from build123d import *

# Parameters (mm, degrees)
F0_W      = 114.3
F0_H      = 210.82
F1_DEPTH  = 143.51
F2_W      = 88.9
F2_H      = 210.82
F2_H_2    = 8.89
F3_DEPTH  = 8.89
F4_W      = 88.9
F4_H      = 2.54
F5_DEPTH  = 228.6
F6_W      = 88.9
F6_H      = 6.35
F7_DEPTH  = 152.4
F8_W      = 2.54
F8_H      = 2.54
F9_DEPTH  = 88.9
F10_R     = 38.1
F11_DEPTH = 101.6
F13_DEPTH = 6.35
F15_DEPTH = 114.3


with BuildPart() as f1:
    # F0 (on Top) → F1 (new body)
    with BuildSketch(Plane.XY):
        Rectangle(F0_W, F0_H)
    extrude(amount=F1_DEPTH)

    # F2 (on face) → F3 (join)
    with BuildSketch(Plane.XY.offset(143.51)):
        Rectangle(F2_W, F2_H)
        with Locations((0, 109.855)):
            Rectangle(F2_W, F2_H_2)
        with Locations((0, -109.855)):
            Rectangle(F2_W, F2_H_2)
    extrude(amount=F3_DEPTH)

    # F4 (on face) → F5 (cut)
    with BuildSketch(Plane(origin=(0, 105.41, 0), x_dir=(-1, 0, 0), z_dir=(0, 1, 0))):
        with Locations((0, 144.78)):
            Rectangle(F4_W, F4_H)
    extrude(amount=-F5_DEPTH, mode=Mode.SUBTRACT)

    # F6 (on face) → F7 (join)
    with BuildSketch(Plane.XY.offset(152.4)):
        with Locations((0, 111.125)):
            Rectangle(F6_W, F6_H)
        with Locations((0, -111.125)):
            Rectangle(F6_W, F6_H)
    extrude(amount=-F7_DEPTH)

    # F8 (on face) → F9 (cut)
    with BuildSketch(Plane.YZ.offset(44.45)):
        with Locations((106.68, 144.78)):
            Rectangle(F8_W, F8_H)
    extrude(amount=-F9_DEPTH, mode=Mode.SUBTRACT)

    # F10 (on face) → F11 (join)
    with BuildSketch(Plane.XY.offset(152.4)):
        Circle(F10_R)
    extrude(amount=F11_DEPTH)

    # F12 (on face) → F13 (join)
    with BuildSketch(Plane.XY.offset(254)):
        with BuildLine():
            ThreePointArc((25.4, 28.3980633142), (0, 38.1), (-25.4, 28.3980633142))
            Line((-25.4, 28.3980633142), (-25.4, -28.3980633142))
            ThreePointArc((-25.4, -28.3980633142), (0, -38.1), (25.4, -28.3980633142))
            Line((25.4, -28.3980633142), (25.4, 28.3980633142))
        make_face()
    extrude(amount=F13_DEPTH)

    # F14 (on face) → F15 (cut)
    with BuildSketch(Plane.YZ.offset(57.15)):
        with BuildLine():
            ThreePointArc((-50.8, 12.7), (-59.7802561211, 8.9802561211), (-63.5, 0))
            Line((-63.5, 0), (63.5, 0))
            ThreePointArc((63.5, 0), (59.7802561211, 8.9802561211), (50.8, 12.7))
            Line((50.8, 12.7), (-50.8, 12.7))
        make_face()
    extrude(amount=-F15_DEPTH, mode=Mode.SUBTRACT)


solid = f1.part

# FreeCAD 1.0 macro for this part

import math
import FreeCAD as App
import Part
import Sketcher

V = App.Vector
Q = App.Units.Quantity

doc = App.newDocument("Part")
body = doc.addObject("PartDesign::Body", "Body")
body.AllowCompound = True

sketch1 = body.newObject("Sketcher::SketchObject", "Sketch")
sketch1.AttachmentSupport = (doc.getObject("XY_Plane"), [""])
sketch1.MapMode = "FlatFace"
sketch1.addGeometry(Part.LineSegment(V(-57, 105, 0), V(-57, -105, 0)), False)
sketch1.addGeometry(Part.LineSegment(V(-57, -105, 0), V(57, -105, 0)), False)
sketch1.addGeometry(Part.LineSegment(V(57, -105, 0), V(57, 105, 0)), False)
sketch1.addGeometry(Part.LineSegment(V(57, 105, 0), V(-57, 105, 0)), False)
sketch1.addConstraint(Sketcher.Constraint("Coincident", 0, 2, 1, 1))
sketch1.addConstraint(Sketcher.Constraint("Coincident", 1, 2, 2, 1))
sketch1.addConstraint(Sketcher.Constraint("Coincident", 2, 2, 3, 1))
sketch1.addConstraint(Sketcher.Constraint("Coincident", 3, 2, 0, 1))
sketch1.addConstraint(Sketcher.Constraint("Vertical", 0))
sketch1.addConstraint(Sketcher.Constraint("Horizontal", 1))
sketch1.addConstraint(Sketcher.Constraint("Vertical", 2))
sketch1.addConstraint(Sketcher.Constraint("Horizontal", 3))
sketch1.addConstraint(Sketcher.Constraint("Symmetric", 0, 2, 2, 2, -1, 1))
sketch1.addConstraint(Sketcher.Constraint("DistanceX", 1, 1, 1, 2, Q("4.5 in")))
sketch1.addConstraint(Sketcher.Constraint("DistanceY", 0, 2, 0, 1, Q("8.3 in")))
pad1 = body.newObject("PartDesign::Pad", "Pad")
pad1.Profile = sketch1
pad1.Length = Q("5.65 in")

sketch2 = body.newObject("Sketcher::SketchObject", "Sketch001")
sketch2.AttachmentSupport = (doc.getObject("XY_Plane"), [""])
sketch2.MapMode = "FlatFace"
sketch2.AttachmentOffset = App.Placement(V(0, 0, 5.65 * 25.4), App.Rotation())
sketch2.addGeometry(Part.LineSegment(V(44, 114, 0), V(-44, 114, 0)), False)
sketch2.addGeometry(Part.LineSegment(V(-44, 114, 0), V(-44, -114, 0)), False)
sketch2.addGeometry(Part.LineSegment(V(-44, -114, 0), V(44, -114, 0)), False)
sketch2.addGeometry(Part.LineSegment(V(44, -114, 0), V(44, 114, 0)), False)
sketch2.addConstraint(Sketcher.Constraint("Coincident", 0, 2, 1, 1))
sketch2.addConstraint(Sketcher.Constraint("Coincident", 1, 2, 2, 1))
sketch2.addConstraint(Sketcher.Constraint("Coincident", 2, 2, 3, 1))
sketch2.addConstraint(Sketcher.Constraint("Coincident", 3, 2, 0, 1))
sketch2.addConstraint(Sketcher.Constraint("Horizontal", 0))
sketch2.addConstraint(Sketcher.Constraint("Vertical", 1))
sketch2.addConstraint(Sketcher.Constraint("Horizontal", 2))
sketch2.addConstraint(Sketcher.Constraint("Vertical", 3))
sketch2.addConstraint(Sketcher.Constraint("Symmetric", 0, 2, 2, 2, -1, 1))
sketch2.addConstraint(Sketcher.Constraint("DistanceY", 1, 2, 1, 1, Q("9 in")))
sketch2.addConstraint(Sketcher.Constraint("DistanceX", 0, 2, 0, 1, Q("3.5 in")))
pad2 = body.newObject("PartDesign::Pad", "Pad001")
pad2.Profile = sketch2
pad2.Length = Q("0.35 in")

sketch3 = body.newObject("Sketcher::SketchObject", "Sketch002")
sketch3.AttachmentSupport = (doc.getObject("XZ_Plane"), [""])
sketch3.MapMode = "FlatFace"
sketch3.AttachmentOffset = App.Placement(V(0, 0, -4.15 * 25.4), App.Rotation())
sketch3.addGeometry(Part.LineSegment(V(44.5, 146.1, 0), V(44.5, 143.5, 0)), False)
sketch3.addGeometry(Part.LineSegment(V(44.5, 143.5, 0), V(-44.5, 143.5, 0)), False)
sketch3.addGeometry(Part.LineSegment(V(-44.5, 143.5, 0), V(-44.5, 146.1, 0)), False)
sketch3.addGeometry(Part.LineSegment(V(-44.5, 146.1, 0), V(44.5, 146.1, 0)), False)
sketch3.addConstraint(Sketcher.Constraint("Coincident", 0, 2, 1, 1))
sketch3.addConstraint(Sketcher.Constraint("Coincident", 1, 2, 2, 1))
sketch3.addConstraint(Sketcher.Constraint("Coincident", 2, 2, 3, 1))
sketch3.addConstraint(Sketcher.Constraint("Coincident", 3, 2, 0, 1))
sketch3.addConstraint(Sketcher.Constraint("Vertical", 0))
sketch3.addConstraint(Sketcher.Constraint("Horizontal", 1))
sketch3.addConstraint(Sketcher.Constraint("Vertical", 2))
sketch3.addConstraint(Sketcher.Constraint("Horizontal", 3))
sketch3.addConstraint(Sketcher.Constraint("DistanceX", 1, 2, 1, 1, Q("3.5 in")))
sketch3.addConstraint(Sketcher.Constraint("DistanceY", 0, 2, 0, 1, Q("0.1 in")))
sketch3.addConstraint(Sketcher.Constraint("DistanceX", -1, 1, 0, 2, Q("1.75 in")))
sketch3.addConstraint(Sketcher.Constraint("DistanceY", -1, 1, 0, 2, Q("5.65 in")))
pocket1 = body.newObject("PartDesign::Pocket", "Pocket")
pocket1.Profile = sketch3
pocket1.Length = Q("9 in")
pocket1.Reversed = True

sketch4 = body.newObject("Sketcher::SketchObject", "Sketch003")
sketch4.AttachmentSupport = (doc.getObject("XY_Plane"), [""])
sketch4.MapMode = "FlatFace"
sketch4.AttachmentOffset = App.Placement(V(0, 0, 6 * 25.4), App.Rotation())
sketch4.addGeometry(Part.LineSegment(V(-44, 114, 0), V(-44, 108, 0)), False)
sketch4.addGeometry(Part.LineSegment(V(-44, 108, 0), V(44, 108, 0)), False)
sketch4.addGeometry(Part.LineSegment(V(44, 108, 0), V(44, 114, 0)), False)
sketch4.addGeometry(Part.LineSegment(V(44, 114, 0), V(-44, 114, 0)), False)
sketch4.addGeometry(Part.LineSegment(V(-44, -108, 0), V(-44, -114, 0)), False)
sketch4.addGeometry(Part.LineSegment(V(-44, -114, 0), V(44, -114, 0)), False)
sketch4.addGeometry(Part.LineSegment(V(44, -114, 0), V(44, -108, 0)), False)
sketch4.addGeometry(Part.LineSegment(V(44, -108, 0), V(-44, -108, 0)), False)
sketch4.addConstraint(Sketcher.Constraint("Coincident", 0, 2, 1, 1))
sketch4.addConstraint(Sketcher.Constraint("Coincident", 1, 2, 2, 1))
sketch4.addConstraint(Sketcher.Constraint("Coincident", 2, 2, 3, 1))
sketch4.addConstraint(Sketcher.Constraint("Coincident", 3, 2, 0, 1))
sketch4.addConstraint(Sketcher.Constraint("Coincident", 4, 2, 5, 1))
sketch4.addConstraint(Sketcher.Constraint("Coincident", 5, 2, 6, 1))
sketch4.addConstraint(Sketcher.Constraint("Coincident", 6, 2, 7, 1))
sketch4.addConstraint(Sketcher.Constraint("Coincident", 7, 2, 4, 1))
sketch4.addConstraint(Sketcher.Constraint("Vertical", 0))
sketch4.addConstraint(Sketcher.Constraint("Horizontal", 1))
sketch4.addConstraint(Sketcher.Constraint("Vertical", 2))
sketch4.addConstraint(Sketcher.Constraint("Horizontal", 3))
sketch4.addConstraint(Sketcher.Constraint("Vertical", 4))
sketch4.addConstraint(Sketcher.Constraint("Horizontal", 5))
sketch4.addConstraint(Sketcher.Constraint("Vertical", 6))
sketch4.addConstraint(Sketcher.Constraint("Horizontal", 7))
sketch4.addConstraint(Sketcher.Constraint("Symmetric", 2, 2, 4, 2, -1, 1))
sketch4.addConstraint(Sketcher.Constraint("Symmetric", 0, 2, 6, 2, -1, 1))
sketch4.addConstraint(Sketcher.Constraint("Vertical", 3, 2, 4, 2))
sketch4.addConstraint(Sketcher.Constraint("DistanceX", 1, 1, 1, 2, Q("3.5 in")))
sketch4.addConstraint(Sketcher.Constraint("DistanceY", 4, 2, 3, 2, Q("9 in")))
sketch4.addConstraint(Sketcher.Constraint("DistanceY", 0, 2, 0, 1, Q("0.25 in")))
pad3 = body.newObject("PartDesign::Pad", "Pad002")
pad3.Profile = sketch4
pad3.Length = Q("6 in")
pad3.Reversed = True

sketch5 = body.newObject("Sketcher::SketchObject", "Sketch004")
sketch5.AttachmentSupport = (doc.getObject("YZ_Plane"), [""])
sketch5.MapMode = "FlatFace"
sketch5.AttachmentOffset = App.Placement(V(0, 0, 1.75 * 25.4), App.Rotation())
sketch5.addGeometry(Part.LineSegment(V(105.4, 146.1, 0), V(105.4, 143.5, 0)), False)
sketch5.addGeometry(Part.LineSegment(V(105.4, 143.5, 0), V(108, 143.5, 0)), False)
sketch5.addGeometry(Part.LineSegment(V(108, 143.5, 0), V(108, 146.1, 0)), False)
sketch5.addGeometry(Part.LineSegment(V(108, 146.1, 0), V(105.4, 146.1, 0)), False)
sketch5.addConstraint(Sketcher.Constraint("Coincident", 0, 2, 1, 1))
sketch5.addConstraint(Sketcher.Constraint("Coincident", 1, 2, 2, 1))
sketch5.addConstraint(Sketcher.Constraint("Coincident", 2, 2, 3, 1))
sketch5.addConstraint(Sketcher.Constraint("Coincident", 3, 2, 0, 1))
sketch5.addConstraint(Sketcher.Constraint("Vertical", 0))
sketch5.addConstraint(Sketcher.Constraint("Horizontal", 1))
sketch5.addConstraint(Sketcher.Constraint("Vertical", 2))
sketch5.addConstraint(Sketcher.Constraint("Horizontal", 3))
sketch5.addConstraint(Sketcher.Constraint("Equal", 3, 0))
sketch5.addConstraint(Sketcher.Constraint("DistanceX", 1, 1, 1, 2, Q("0.1 in")))
sketch5.addConstraint(Sketcher.Constraint("DistanceX", -1, 1, 0, 2, Q("4.15 in")))
sketch5.addConstraint(Sketcher.Constraint("DistanceY", -1, 1, 0, 2, Q("5.65 in")))
pocket2 = body.newObject("PartDesign::Pocket", "Pocket001")
pocket2.Profile = sketch5
pocket2.Length = Q("3.5 in")

sketch6 = body.newObject("Sketcher::SketchObject", "Sketch005")
sketch6.AttachmentSupport = (doc.getObject("XY_Plane"), [""])
sketch6.MapMode = "FlatFace"
sketch6.AttachmentOffset = App.Placement(V(0, 0, 6 * 25.4), App.Rotation())
sketch6.addGeometry(Part.Circle(V(0, 0, 0), V(0, 0, 1), 38), False)
sketch6.addConstraint(Sketcher.Constraint("Coincident", 0, 3, -1, 1))
sketch6.addConstraint(Sketcher.Constraint("Diameter", 0, Q("3 in")))
pad4 = body.newObject("PartDesign::Pad", "Pad003")
pad4.Profile = sketch6
pad4.Length = Q("4 in")

sketch7 = body.newObject("Sketcher::SketchObject", "Sketch006")
sketch7.AttachmentSupport = (doc.getObject("XY_Plane"), [""])
sketch7.MapMode = "FlatFace"
sketch7.AttachmentOffset = App.Placement(V(0, 0, 10 * 25.4), App.Rotation())
sketch7.addGeometry(Part.ArcOfCircle(Part.Circle(V(0, 0, 0), V(0, 0, 1), 38), math.radians(48), math.radians(132)), False)
sketch7.addGeometry(Part.LineSegment(V(-25, 28, 0), V(-25, -28, 0)), False)
sketch7.addGeometry(Part.ArcOfCircle(Part.Circle(V(0, 0, 0), V(0, 0, 1), 38), math.radians(-132), math.radians(-48)), False)
sketch7.addGeometry(Part.LineSegment(V(25, -28, 0), V(25, 28, 0)), False)
sketch7.addConstraint(Sketcher.Constraint("Coincident", 0, 2, 1, 1))
sketch7.addConstraint(Sketcher.Constraint("Coincident", 1, 2, 2, 1))
sketch7.addConstraint(Sketcher.Constraint("Coincident", 2, 2, 3, 1))
sketch7.addConstraint(Sketcher.Constraint("Coincident", 3, 2, 0, 1))
sketch7.addConstraint(Sketcher.Constraint("Vertical", 1))
sketch7.addConstraint(Sketcher.Constraint("Vertical", 3))
sketch7.addConstraint(Sketcher.Constraint("Coincident", 0, 3, -1, 1))
sketch7.addConstraint(Sketcher.Constraint("Coincident", 2, 3, -1, 1))
sketch7.addConstraint(Sketcher.Constraint("Equal", 0, 2))
sketch7.addConstraint(Sketcher.Constraint("Horizontal", 1, 2, 2, 2))
sketch7.addConstraint(Sketcher.Constraint("Radius", 0, Q("1.5 in")))
sketch7.addConstraint(Sketcher.Constraint("DistanceX", 0, 2, -1, 1, Q("1 in")))
pad5 = body.newObject("PartDesign::Pad", "Pad004")
pad5.Profile = sketch7
pad5.Length = Q("0.25 in")

sketch8 = body.newObject("Sketcher::SketchObject", "Sketch007")
sketch8.AttachmentSupport = (doc.getObject("YZ_Plane"), [""])
sketch8.MapMode = "FlatFace"
sketch8.AttachmentOffset = App.Placement(V(0, 0, 2.25 * 25.4), App.Rotation())
sketch8.addGeometry(Part.ArcOfCircle(Part.Circle(V(-51, 0, 0), V(0, 0, 1), 13), math.radians(90), math.radians(180)), False)
sketch8.addGeometry(Part.LineSegment(V(-64, 0, 0), V(64, 0, 0)), False)
sketch8.addGeometry(Part.ArcOfCircle(Part.Circle(V(51, 0, 0), V(0, 0, 1), 13), math.radians(0), math.radians(90)), False)
sketch8.addGeometry(Part.LineSegment(V(51, 13, 0), V(-51, 13, 0)), False)
sketch8.addConstraint(Sketcher.Constraint("Coincident", 0, 2, 1, 1))
sketch8.addConstraint(Sketcher.Constraint("Coincident", 1, 2, 2, 1))
sketch8.addConstraint(Sketcher.Constraint("Tangent", 2, 2, 3, 1))
sketch8.addConstraint(Sketcher.Constraint("Tangent", 3, 2, 0, 1))
sketch8.addConstraint(Sketcher.Constraint("Horizontal", 1))
sketch8.addConstraint(Sketcher.Constraint("Horizontal", 3))
sketch8.addConstraint(Sketcher.Constraint("Equal", 0, 2))
sketch8.addConstraint(Sketcher.Constraint("Symmetric", 0, 3, 2, 3, -1, 1))
sketch8.addConstraint(Sketcher.Constraint("PointOnObject", 0, 2, -1))
sketch8.addConstraint(Sketcher.Constraint("Radius", 0, Q("0.5 in")))
sketch8.addConstraint(Sketcher.Constraint("DistanceX", 1, 1, 1, 2, Q("5 in")))
pocket3 = body.newObject("PartDesign::Pocket", "Pocket002")
pocket3.Profile = sketch8
pocket3.Length = Q("4.5 in")

doc.recompute()
